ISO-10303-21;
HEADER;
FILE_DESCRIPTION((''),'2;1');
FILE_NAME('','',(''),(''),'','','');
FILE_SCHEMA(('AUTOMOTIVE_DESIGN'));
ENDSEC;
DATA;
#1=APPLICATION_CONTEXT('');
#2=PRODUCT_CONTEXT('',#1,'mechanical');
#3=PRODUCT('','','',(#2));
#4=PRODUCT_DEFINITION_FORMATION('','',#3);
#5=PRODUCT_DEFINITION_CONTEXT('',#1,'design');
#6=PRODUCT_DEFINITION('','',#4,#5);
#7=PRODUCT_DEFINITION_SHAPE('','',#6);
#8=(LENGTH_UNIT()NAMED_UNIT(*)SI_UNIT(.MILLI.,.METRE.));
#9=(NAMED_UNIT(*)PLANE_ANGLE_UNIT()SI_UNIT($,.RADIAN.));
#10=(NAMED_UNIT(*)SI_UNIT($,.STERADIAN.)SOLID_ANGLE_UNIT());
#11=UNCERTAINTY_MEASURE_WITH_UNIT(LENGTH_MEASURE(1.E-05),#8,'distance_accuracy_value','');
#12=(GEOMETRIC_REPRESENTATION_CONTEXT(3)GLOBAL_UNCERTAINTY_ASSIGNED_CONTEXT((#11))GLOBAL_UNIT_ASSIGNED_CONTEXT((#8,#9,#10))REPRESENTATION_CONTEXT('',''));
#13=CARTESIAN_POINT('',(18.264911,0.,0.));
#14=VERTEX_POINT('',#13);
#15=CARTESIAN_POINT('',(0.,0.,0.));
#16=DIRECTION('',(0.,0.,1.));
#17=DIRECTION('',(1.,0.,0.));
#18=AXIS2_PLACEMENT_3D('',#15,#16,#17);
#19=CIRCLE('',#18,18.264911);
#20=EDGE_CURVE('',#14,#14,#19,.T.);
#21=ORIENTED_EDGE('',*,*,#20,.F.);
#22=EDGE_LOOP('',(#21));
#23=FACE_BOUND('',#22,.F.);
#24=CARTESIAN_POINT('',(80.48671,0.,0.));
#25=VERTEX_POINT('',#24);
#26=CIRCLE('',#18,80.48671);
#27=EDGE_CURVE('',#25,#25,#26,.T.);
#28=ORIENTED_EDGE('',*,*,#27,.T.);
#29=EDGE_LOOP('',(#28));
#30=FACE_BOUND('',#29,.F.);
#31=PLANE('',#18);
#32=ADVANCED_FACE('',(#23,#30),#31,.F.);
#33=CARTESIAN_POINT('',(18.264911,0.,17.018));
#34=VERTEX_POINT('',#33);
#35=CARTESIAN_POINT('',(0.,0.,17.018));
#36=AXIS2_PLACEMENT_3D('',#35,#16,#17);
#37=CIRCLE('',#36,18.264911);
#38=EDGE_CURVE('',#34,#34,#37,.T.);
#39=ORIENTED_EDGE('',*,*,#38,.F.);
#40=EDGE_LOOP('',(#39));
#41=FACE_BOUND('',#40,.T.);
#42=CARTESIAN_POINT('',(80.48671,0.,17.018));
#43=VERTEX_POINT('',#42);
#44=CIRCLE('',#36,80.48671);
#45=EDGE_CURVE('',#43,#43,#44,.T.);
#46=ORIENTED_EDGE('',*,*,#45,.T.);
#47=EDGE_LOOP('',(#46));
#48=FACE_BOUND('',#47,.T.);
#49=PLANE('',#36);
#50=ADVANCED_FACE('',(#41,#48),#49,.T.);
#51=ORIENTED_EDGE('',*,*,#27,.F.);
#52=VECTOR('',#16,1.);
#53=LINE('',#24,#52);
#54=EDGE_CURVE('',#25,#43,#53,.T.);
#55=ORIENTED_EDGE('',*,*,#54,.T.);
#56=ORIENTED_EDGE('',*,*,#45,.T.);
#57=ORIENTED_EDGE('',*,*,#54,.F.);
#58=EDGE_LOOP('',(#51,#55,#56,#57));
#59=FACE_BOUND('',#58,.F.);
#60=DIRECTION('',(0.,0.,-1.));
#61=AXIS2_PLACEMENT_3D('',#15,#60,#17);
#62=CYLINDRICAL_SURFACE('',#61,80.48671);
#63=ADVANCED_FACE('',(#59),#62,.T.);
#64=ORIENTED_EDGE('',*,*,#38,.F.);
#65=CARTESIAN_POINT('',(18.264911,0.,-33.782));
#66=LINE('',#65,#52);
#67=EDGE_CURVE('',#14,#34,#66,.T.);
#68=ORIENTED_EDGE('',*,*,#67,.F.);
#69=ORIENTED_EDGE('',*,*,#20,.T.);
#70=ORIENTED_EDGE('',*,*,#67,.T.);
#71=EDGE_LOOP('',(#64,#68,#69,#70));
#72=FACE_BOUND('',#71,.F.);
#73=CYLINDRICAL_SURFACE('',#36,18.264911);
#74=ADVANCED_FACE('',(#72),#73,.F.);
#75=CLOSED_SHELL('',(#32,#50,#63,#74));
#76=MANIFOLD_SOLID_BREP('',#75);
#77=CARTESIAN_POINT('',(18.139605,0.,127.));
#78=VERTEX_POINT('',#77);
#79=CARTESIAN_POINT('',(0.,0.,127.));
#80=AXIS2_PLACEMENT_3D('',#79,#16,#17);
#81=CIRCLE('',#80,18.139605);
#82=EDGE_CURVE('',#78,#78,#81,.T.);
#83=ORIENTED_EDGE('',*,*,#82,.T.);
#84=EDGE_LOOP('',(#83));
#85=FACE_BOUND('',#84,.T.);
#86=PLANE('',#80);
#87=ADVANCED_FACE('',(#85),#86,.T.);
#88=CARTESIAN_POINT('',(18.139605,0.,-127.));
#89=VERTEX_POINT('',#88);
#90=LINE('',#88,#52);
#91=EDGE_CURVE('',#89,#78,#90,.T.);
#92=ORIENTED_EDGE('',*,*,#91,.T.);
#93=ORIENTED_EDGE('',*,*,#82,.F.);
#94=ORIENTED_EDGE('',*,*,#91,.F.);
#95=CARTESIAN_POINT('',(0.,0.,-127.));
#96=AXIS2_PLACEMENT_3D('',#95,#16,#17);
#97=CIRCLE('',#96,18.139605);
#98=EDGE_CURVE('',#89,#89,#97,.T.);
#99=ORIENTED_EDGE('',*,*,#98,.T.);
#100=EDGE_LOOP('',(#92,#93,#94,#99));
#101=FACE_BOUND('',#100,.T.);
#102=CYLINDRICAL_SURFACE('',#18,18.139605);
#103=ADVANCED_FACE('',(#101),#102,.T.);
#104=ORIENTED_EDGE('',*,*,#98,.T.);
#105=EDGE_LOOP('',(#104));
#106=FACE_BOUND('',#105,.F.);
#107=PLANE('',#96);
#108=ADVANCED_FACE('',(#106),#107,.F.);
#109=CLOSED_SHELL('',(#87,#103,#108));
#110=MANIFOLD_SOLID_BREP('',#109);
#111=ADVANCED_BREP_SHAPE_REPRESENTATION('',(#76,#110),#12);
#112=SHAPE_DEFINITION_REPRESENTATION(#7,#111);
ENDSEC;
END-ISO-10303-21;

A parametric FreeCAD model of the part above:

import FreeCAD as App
import Part
import Sketcher

V = App.Vector
Q = App.Units.Quantity

doc = App.newDocument("Part")
body = doc.addObject("PartDesign::Body", "Body")
body.AllowCompound = True

sketch1 = body.newObject("Sketcher::SketchObject", "Sketch")
sketch1.AttachmentSupport = (doc.getObject("XY_Plane"), [""])
sketch1.MapMode = "FlatFace"
sketch1.addGeometry(Part.Circle(V(0, 0, 0), V(0, 0, 1), 80), False)
sketch1.addConstraint(Sketcher.Constraint("Coincident", 0, 3, -1, 1))
sketch1.addConstraint(Sketcher.Constraint("Diameter", 0, Q("160.97342 mm")))
pad1 = body.newObject("PartDesign::Pad", "Pad")
pad1.Profile = sketch1
pad1.Length = Q("0.67 in")

sketch2 = body.newObject("Sketcher::SketchObject", "Sketch001")
sketch2.AttachmentSupport = (doc.getObject("XY_Plane"), [""])
sketch2.MapMode = "FlatFace"
sketch2.addGeometry(Part.Circle(V(0, 0, 0), V(0, 0, 1), 18), False)
sketch2.addConstraint(Sketcher.Constraint("Coincident", 0, 3, -1, 1))
sketch2.addConstraint(Sketcher.Constraint("Diameter", 0, Q("36.279211 mm")))
pad2 = body.newObject("PartDesign::Pad", "Pad001")
pad2.Profile = sketch2
pad2.Length = Q("10 in")
pad2.Midplane = True

sketch3 = body.newObject("Sketcher::SketchObject", "Sketch002")
sketch3.AttachmentSupport = (doc.getObject("XY_Plane"), [""])
sketch3.MapMode = "FlatFace"
sketch3.AttachmentOffset = App.Placement(V(0, 0, 0.67 * 25.4), App.Rotation())
sketch3.addGeometry(Part.Circle(V(0, 0, 0), V(0, 0, 1), 18), False)
sketch3.addGeometry(Part.Circle(V(0, 0, 0), V(0, 0, 1), 18), False)
sketch3.addConstraint(Sketcher.Constraint("Coincident", 0, 3, -1, 1))
sketch3.addConstraint(Sketcher.Constraint("Coincident", 1, 3, -1, 1))
sketch3.addConstraint(Sketcher.Constraint("Diameter", 0, Q("36.529821 mm")))
sketch3.addConstraint(Sketcher.Constraint("Diameter", 1, Q("36.279211 mm")))
pocket1 = body.newObject("PartDesign::Pocket", "Pocket")
pocket1.Profile = sketch3
pocket1.Length = Q("4 in")
pocket1.Midplane = True

doc.recompute()
